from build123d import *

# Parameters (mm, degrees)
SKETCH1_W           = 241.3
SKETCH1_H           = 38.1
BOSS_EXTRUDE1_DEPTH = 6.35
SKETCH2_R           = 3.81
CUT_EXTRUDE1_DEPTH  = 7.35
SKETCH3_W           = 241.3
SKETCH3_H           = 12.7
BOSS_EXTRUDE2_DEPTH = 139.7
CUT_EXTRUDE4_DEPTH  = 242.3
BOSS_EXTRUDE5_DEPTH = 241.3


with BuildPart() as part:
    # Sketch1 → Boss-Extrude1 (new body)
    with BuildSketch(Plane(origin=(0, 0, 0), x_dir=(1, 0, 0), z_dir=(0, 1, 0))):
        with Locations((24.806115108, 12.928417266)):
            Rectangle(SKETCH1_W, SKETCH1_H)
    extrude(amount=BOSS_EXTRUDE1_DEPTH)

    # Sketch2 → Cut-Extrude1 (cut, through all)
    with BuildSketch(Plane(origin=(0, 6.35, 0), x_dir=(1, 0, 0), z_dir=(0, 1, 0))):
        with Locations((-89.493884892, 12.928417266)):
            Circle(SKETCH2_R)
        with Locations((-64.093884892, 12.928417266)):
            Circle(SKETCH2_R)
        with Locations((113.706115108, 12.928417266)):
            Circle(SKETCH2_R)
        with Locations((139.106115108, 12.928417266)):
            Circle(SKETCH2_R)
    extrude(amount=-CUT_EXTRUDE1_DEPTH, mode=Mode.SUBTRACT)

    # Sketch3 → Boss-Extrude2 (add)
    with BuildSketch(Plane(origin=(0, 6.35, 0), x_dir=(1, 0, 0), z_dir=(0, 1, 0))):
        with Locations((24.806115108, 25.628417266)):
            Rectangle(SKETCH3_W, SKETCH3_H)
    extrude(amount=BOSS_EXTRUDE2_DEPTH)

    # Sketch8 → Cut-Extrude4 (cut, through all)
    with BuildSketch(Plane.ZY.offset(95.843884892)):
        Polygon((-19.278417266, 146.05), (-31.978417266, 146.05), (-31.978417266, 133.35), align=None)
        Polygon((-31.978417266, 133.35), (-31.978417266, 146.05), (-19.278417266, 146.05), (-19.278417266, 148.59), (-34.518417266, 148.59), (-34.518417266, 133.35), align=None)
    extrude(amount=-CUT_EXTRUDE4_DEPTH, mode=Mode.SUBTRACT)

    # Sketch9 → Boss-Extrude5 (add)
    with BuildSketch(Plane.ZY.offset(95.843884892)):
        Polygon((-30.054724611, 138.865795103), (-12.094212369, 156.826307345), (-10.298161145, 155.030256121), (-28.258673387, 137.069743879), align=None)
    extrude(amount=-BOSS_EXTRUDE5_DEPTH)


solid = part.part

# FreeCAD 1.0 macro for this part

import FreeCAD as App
import Part
import Sketcher
Q = App.Units.Quantity


def add_polygon(sketch, points):
    """Adds a closed chain of lines whose ends are joined by coincident constraints."""
    first, n = sketch.GeometryCount, len(points)
    for a, b in zip(points, points[1:] + points[:1]):
        sketch.addGeometry(Part.LineSegment(App.Vector(*a, 0), App.Vector(*b, 0)), False)
    for i in range(n):
        sketch.addConstraint(Sketcher.Constraint("Coincident", first + i, 2, first + (i + 1) % n, 1))

doc = App.newDocument("Part")
body = doc.addObject("PartDesign::Body", "Body")

# Sketch on XZ plane
sketch1 = doc.addObject("Sketcher::SketchObject", "Sketch")
body.addObject(sketch1)
sketch1.AttachmentSupport = (doc.XZ_Plane, [""])
sketch1.MapMode = "FlatFace"
add_polygon(sketch1, [(-95.843885, -31.978417), (-95.843885, 6.121583), (145.456115, 6.121583), (145.456115, -31.978417)])  # lines 0-3
sketch1.addConstraint([
    Sketcher.Constraint("Vertical", 0),
    Sketcher.Constraint("Horizontal", 1),
    Sketcher.Constraint("Vertical", 2),
    Sketcher.Constraint("Horizontal", 3),
    Sketcher.Constraint("DistanceX", 1, 1, 1, 2, Q("9.5 in")),
    Sketcher.Constraint("DistanceY", 0, 1, 0, 2, Q("1.5 in")),
    Sketcher.Constraint("DistanceX", 0, 2, -1, 1, 95.843885),
    Sketcher.Constraint("DistanceY", -1, 1, 0, 2, 6.121583),
])
pad1 = doc.addObject("PartDesign::Pad", "Pad")
body.addObject(pad1)
pad1.Profile = sketch1
pad1.Length = Q("0.25 in")
pad1.Reversed = True

# Sketch on XZ plane
sketch2 = doc.addObject("Sketcher::SketchObject", "Sketch001")
body.addObject(sketch2)
sketch2.AttachmentSupport = (doc.XZ_Plane, [""])
sketch2.MapMode = "FlatFace"
sketch2.AttachmentOffset = App.Placement(App.Vector(0, 0, -0.25 * 25.4), App.Rotation())
sketch2.addGeometry([
    Part.Circle(App.Vector(-89.493885, -12.928417, 0), App.Vector(0, 0, 1), 3.81),
    Part.Circle(App.Vector(-64.093885, -12.928417, 0), App.Vector(0, 0, 1), 3.81),
    Part.Circle(App.Vector(113.706115, -12.928417, 0), App.Vector(0, 0, 1), 3.81),
    Part.Circle(App.Vector(139.106115, -12.928417, 0), App.Vector(0, 0, 1), 3.81),
], False)
sketch2.addConstraint([
    Sketcher.Constraint("Equal", 0, 1),
    Sketcher.Constraint("Equal", 1, 2),
    Sketcher.Constraint("Equal", 2, 3),
    Sketcher.Constraint("Horizontal", 0, 3, 1, 3),
    Sketcher.Constraint("Horizontal", 1, 3, 2, 3),
    Sketcher.Constraint("Horizontal", 2, 3, 3, 3),
    Sketcher.Constraint("Diameter", 0, Q("0.3 in")),
    Sketcher.Constraint("DistanceX", 0, 3, 1, 3, Q("1 in")),
    Sketcher.Constraint("DistanceX", 1, 3, 2, 3, Q("7 in")),
    Sketcher.Constraint("DistanceX", 2, 3, 3, 3, Q("1 in")),
    Sketcher.Constraint("DistanceX", 0, 3, -1, 1, 89.493885),
    Sketcher.Constraint("DistanceY", 0, 3, -1, 1, 12.928417),
])
pocket1 = doc.addObject("PartDesign::Pocket", "Pocket")
body.addObject(pocket1)
pocket1.Profile = sketch2
pocket1.Type = "ThroughAll"
pocket1.Reversed = True

# Sketch on XZ plane
sketch3 = doc.addObject("Sketcher::SketchObject", "Sketch002")
body.addObject(sketch3)
sketch3.AttachmentSupport = (doc.XZ_Plane, [""])
sketch3.MapMode = "FlatFace"
sketch3.AttachmentOffset = App.Placement(App.Vector(0, 0, -0.25 * 25.4), App.Rotation())
add_polygon(sketch3, [(-95.843885, -31.978417), (-95.843885, -19.278417), (145.456115, -19.278417), (145.456115, -31.978417)])  # lines 0-3
sketch3.addConstraint([
    Sketcher.Constraint("Vertical", 0),
    Sketcher.Constraint("Horizontal", 1),
    Sketcher.Constraint("Vertical", 2),
    Sketcher.Constraint("Horizontal", 3),
    Sketcher.Constraint("DistanceX", 1, 1, 1, 2, Q("9.5 in")),
    Sketcher.Constraint("DistanceY", 0, 1, 0, 2, Q("0.5 in")),
    Sketcher.Constraint("DistanceX", 0, 2, -1, 1, 95.843885),
    Sketcher.Constraint("DistanceY", 0, 2, -1, 1, 19.278417),
])
pad2 = doc.addObject("PartDesign::Pad", "Pad001")
body.addObject(pad2)
pad2.Profile = sketch3
pad2.Length = Q("5.5 in")
pad2.Reversed = True

# Sketch on YZ plane
sketch4 = doc.addObject("Sketcher::SketchObject", "Sketch003")
body.addObject(sketch4)
sketch4.AttachmentSupport = (doc.YZ_Plane, [""])
sketch4.MapMode = "FlatFace"
sketch4.AttachmentOffset = App.Placement(App.Vector(0, 0, -95.843885), App.Rotation())
add_polygon(sketch4, [(133.35, -31.978417), (146.05, -19.278417), (148.59, -19.278417), (148.59, -34.518417), (133.35, -34.518417)])  # lines 0-4
sketch4.addConstraint([
    Sketcher.Constraint("Horizontal", 1),
    Sketcher.Constraint("Vertical", 2),
    Sketcher.Constraint("Horizontal", 3),
    Sketcher.Constraint("Vertical", 4),
    Sketcher.Constraint("Equal", 3, 2),
    Sketcher.Constraint("Equal", 1, 4),
    Sketcher.Constraint("DistanceX", 1, 1, 1, 2, Q("0.1 in")),
    Sketcher.Constraint("DistanceX", 3, 2, 3, 1, Q("0.6 in")),
    Sketcher.Constraint("DistanceX", -1, 1, 0, 2, Q("5.75 in")),
    Sketcher.Constraint("DistanceY", 0, 2, -1, 1, 19.278417),
])
pocket2 = doc.addObject("PartDesign::Pocket", "Pocket001")
body.addObject(pocket2)
pocket2.Profile = sketch4
pocket2.Type = "ThroughAll"
pocket2.Reversed = True

# Sketch on YZ plane
sketch5 = doc.addObject("Sketcher::SketchObject", "Sketch004")
body.addObject(sketch5)
sketch5.AttachmentSupport = (doc.YZ_Plane, [""])
sketch5.MapMode = "FlatFace"
sketch5.AttachmentOffset = App.Placement(App.Vector(0, 0, -95.843885), App.Rotation())
add_polygon(sketch5, [(156.826307, -12.094212), (138.865795, -30.054725), (137.069744, -28.258673), (155.030256, -10.298161)])  # lines 0-3
sketch5.addConstraint([
    Sketcher.Constraint("Perpendicular", 0, 1),
    Sketcher.Constraint("Perpendicular", 1, 2),
    Sketcher.Constraint("Perpendicular", 2, 3),
    Sketcher.Constraint("Distance", 0, Q("1 in")),
    Sketcher.Constraint("Angle", 0, Q("-135 deg")),
    Sketcher.Constraint("Distance", 1, Q("0.1 in")),
    Sketcher.Constraint("DistanceY", 2, 2, -1, 1, 10.298161),
    Sketcher.Constraint("DistanceX", -1, 1, 0, 2, 138.865795),
])
pad3 = doc.addObject("PartDesign::Pad", "Pad002")
body.addObject(pad3)
pad3.Profile = sketch5
pad3.Length = Q("9.5 in")

doc.recompute()
